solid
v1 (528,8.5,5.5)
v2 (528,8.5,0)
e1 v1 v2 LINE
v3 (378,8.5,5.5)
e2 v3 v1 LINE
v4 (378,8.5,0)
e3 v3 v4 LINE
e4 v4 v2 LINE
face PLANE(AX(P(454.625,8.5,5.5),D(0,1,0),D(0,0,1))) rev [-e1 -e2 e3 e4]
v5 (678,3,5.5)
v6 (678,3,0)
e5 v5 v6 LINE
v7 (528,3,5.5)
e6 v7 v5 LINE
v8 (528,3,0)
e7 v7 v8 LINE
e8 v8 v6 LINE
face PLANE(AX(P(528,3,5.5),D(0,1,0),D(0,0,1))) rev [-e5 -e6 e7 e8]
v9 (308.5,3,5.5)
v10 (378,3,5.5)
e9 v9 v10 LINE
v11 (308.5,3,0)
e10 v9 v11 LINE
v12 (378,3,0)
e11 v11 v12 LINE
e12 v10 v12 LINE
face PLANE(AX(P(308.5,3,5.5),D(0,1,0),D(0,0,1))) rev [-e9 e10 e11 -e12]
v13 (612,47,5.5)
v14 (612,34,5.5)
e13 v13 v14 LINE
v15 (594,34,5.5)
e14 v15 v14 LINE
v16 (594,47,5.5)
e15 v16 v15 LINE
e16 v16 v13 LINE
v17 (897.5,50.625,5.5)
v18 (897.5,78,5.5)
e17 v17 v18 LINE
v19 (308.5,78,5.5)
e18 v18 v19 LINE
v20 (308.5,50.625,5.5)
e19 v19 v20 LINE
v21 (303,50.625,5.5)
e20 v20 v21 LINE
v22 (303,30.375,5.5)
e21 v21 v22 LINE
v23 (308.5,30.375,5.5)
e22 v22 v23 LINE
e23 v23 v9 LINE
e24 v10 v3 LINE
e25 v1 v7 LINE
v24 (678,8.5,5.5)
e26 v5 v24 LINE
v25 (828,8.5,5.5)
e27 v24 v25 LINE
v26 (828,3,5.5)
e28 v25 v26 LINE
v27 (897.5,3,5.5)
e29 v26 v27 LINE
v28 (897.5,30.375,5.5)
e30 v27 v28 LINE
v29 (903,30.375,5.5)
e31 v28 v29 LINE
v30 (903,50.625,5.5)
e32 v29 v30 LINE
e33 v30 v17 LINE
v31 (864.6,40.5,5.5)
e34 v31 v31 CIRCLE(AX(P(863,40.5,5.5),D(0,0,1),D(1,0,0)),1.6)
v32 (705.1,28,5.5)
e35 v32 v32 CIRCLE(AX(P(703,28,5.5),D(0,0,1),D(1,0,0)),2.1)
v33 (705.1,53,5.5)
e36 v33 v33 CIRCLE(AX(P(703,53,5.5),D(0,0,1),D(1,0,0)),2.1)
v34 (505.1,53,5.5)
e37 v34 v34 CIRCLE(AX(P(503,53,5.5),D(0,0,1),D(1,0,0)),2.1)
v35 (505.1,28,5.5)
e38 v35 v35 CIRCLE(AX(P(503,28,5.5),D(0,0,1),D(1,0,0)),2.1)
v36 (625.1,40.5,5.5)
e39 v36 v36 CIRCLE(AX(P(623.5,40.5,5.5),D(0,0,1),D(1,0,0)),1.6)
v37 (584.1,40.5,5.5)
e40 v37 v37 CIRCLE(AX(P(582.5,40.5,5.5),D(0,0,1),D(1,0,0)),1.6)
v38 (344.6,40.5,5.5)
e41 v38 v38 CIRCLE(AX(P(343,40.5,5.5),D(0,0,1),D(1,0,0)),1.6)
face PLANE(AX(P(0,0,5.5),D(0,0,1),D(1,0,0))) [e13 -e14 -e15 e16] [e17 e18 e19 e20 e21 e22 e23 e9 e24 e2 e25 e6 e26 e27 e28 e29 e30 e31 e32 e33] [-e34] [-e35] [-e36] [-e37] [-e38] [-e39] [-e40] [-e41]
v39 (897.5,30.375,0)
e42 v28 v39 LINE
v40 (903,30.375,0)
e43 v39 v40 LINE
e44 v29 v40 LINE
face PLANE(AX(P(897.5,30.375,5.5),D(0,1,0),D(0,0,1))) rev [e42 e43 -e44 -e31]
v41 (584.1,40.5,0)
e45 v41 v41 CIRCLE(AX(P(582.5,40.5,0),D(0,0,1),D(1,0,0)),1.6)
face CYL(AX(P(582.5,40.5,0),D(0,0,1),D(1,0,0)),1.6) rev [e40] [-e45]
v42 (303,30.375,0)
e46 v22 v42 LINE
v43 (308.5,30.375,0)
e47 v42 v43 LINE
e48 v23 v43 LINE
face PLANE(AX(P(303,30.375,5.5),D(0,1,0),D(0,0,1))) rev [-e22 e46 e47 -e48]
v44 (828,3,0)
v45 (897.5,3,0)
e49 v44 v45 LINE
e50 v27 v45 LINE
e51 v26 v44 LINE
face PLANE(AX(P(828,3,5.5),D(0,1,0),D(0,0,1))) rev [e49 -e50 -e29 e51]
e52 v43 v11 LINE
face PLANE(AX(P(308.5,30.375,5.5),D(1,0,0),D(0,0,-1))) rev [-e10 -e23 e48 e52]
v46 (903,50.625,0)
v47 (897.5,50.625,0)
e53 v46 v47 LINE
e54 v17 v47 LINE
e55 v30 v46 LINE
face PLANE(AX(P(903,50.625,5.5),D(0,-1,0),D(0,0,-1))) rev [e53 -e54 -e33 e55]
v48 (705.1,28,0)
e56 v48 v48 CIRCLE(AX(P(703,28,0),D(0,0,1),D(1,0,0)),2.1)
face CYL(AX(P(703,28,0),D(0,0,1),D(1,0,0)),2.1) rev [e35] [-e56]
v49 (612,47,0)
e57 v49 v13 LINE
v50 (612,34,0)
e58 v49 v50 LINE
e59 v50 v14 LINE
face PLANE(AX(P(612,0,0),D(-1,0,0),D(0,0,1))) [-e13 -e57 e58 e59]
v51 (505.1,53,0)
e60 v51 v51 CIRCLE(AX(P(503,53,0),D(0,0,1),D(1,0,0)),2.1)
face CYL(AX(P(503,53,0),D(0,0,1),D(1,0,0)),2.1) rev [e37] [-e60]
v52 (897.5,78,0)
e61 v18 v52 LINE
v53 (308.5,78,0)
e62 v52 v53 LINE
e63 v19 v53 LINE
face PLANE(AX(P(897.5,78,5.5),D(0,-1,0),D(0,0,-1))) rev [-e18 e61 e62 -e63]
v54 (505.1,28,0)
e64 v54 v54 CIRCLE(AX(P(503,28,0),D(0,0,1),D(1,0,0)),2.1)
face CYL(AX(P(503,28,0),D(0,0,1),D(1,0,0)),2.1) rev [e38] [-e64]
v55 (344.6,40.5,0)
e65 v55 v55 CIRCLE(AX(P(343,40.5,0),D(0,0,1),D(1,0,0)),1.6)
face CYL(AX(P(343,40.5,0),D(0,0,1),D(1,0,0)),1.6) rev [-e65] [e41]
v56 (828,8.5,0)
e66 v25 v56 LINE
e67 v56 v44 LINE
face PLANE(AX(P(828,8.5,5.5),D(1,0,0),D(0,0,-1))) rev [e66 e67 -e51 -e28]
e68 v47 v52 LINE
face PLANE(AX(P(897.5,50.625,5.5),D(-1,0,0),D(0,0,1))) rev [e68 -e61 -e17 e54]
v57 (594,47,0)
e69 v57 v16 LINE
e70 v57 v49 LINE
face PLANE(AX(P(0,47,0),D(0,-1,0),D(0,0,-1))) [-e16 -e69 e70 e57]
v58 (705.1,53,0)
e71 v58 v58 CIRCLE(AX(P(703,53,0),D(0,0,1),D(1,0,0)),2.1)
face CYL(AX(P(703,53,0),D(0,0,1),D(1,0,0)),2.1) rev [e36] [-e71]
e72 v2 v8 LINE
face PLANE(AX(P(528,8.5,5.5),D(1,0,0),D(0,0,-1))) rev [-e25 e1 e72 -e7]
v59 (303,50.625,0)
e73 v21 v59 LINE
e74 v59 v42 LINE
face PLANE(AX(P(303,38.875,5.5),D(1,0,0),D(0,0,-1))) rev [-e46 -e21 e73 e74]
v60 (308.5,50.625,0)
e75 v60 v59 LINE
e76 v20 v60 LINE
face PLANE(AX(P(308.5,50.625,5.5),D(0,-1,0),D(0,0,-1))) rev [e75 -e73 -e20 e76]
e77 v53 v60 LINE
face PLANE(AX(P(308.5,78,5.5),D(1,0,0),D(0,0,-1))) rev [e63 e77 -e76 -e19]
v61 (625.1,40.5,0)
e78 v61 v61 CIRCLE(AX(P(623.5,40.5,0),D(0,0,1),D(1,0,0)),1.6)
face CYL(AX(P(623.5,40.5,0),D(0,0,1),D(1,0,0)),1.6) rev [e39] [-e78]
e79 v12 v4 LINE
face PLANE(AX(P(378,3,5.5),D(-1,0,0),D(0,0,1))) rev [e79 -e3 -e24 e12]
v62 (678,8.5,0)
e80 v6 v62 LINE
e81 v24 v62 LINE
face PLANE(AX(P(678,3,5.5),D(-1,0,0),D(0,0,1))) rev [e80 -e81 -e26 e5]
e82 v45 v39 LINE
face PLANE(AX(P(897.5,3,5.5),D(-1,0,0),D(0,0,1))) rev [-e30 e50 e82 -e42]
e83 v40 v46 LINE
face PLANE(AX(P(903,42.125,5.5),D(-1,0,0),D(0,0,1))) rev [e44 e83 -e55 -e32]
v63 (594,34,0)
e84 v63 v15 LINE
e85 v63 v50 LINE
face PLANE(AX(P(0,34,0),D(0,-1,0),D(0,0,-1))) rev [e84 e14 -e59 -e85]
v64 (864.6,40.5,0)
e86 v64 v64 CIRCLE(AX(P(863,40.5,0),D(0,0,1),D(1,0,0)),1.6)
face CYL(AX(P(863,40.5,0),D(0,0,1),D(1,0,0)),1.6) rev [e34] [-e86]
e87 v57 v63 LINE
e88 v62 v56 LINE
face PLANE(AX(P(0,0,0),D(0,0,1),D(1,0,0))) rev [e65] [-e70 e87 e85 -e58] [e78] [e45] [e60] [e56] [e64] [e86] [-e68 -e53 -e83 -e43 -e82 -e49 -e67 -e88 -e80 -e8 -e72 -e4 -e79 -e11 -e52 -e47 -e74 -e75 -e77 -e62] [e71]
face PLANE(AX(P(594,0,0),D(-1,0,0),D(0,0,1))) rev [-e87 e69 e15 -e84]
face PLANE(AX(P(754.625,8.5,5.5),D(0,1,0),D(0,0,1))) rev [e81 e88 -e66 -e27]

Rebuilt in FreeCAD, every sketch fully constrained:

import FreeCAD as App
import Part
import Sketcher
from FreeCAD import Vector

doc = App.newDocument("Part")
body = doc.addObject("PartDesign::Body", "Body")

# Sketch on XY plane
sketch1 = body.newObject("Sketcher::SketchObject", "Sketch")
sketch1.AttachmentSupport = (doc.getObject("XY_Plane"), [""])
sketch1.MapMode = "FlatFace"
sketch1.addGeometry([
    Part.LineSegment(Vector(308.5, 78, 0), Vector(308.5, 50.6, 0)),  # 0
    Part.LineSegment(Vector(308.5, 50.6, 0), Vector(303, 50.6, 0)),  # 1
    Part.LineSegment(Vector(303, 50.6, 0), Vector(303, 42.1, 0)),  # 2
    Part.LineSegment(Vector(303, 42.1, 0), Vector(306.2, 42.1, 0)),  # 3
    Part.LineSegment(Vector(306.2, 42.1, 0), Vector(306.2, 38.9, 0)),  # 4
    Part.LineSegment(Vector(306.2, 38.9, 0), Vector(303, 38.9, 0)),  # 5
    Part.LineSegment(Vector(303, 38.9, 0), Vector(303, 30.4, 0)),  # 6
    Part.LineSegment(Vector(303, 30.4, 0), Vector(308.5, 30.4, 0)),  # 7
    Part.LineSegment(Vector(308.5, 30.4, 0), Vector(308.5, 3, 0)),  # 8
    Part.LineSegment(Vector(308.5, 3, 0), Vector(378, 3, 0)),  # 9
    Part.LineSegment(Vector(378, 3, 0), Vector(378, 8.5, 0)),  # 10
    Part.LineSegment(Vector(378, 8.5, 0), Vector(451.4, 8.5, 0)),  # 11
    Part.LineSegment(Vector(451.4, 8.5, 0), Vector(451.4, 17.9, 0)),  # 12
    Part.LineSegment(Vector(451.4, 17.9, 0), Vector(450.1, 17.9, 0)),  # 13
    Part.LineSegment(Vector(450.1, 17.9, 0), Vector(450.1, 20.6, 0)),  # 14
    Part.LineSegment(Vector(450.1, 20.6, 0), Vector(451.4, 20.6, 0)),  # 15
    Part.LineSegment(Vector(451.4, 20.6, 0), Vector(451.4, 23.2, 0)),  # 16
    Part.LineSegment(Vector(451.4, 23.2, 0), Vector(454.6, 23.2, 0)),  # 17
    Part.LineSegment(Vector(454.6, 23.2, 0), Vector(454.6, 20.6, 0)),  # 18
    Part.LineSegment(Vector(454.6, 20.6, 0), Vector(455.9, 20.6, 0)),  # 19
    Part.LineSegment(Vector(455.9, 20.6, 0), Vector(455.9, 17.9, 0)),  # 20
    Part.LineSegment(Vector(455.9, 17.9, 0), Vector(454.6, 17.9, 0)),  # 21
    Part.LineSegment(Vector(454.6, 17.9, 0), Vector(454.6, 8.5, 0)),  # 22
    Part.LineSegment(Vector(454.6, 8.5, 0), Vector(528, 8.5, 0)),  # 23
    Part.LineSegment(Vector(528, 8.5, 0), Vector(528, 3, 0)),  # 24
    Part.LineSegment(Vector(528, 3, 0), Vector(678, 3, 0)),  # 25
    Part.LineSegment(Vector(678, 3, 0), Vector(678, 8.5, 0)),  # 26
    Part.LineSegment(Vector(678, 8.5, 0), Vector(751.4, 8.5, 0)),  # 27
    Part.LineSegment(Vector(751.4, 8.5, 0), Vector(751.4, 17.9, 0)),  # 28
    Part.LineSegment(Vector(751.4, 17.9, 0), Vector(750.1, 17.9, 0)),  # 29
    Part.LineSegment(Vector(750.1, 17.9, 0), Vector(750.1, 20.6, 0)),  # 30
    Part.LineSegment(Vector(750.1, 20.6, 0), Vector(751.4, 20.6, 0)),  # 31
    Part.LineSegment(Vector(751.4, 20.6, 0), Vector(751.4, 23.2, 0)),  # 32
    Part.LineSegment(Vector(751.4, 23.2, 0), Vector(754.6, 23.2, 0)),  # 33
    Part.LineSegment(Vector(754.6, 23.2, 0), Vector(754.6, 20.6, 0)),  # 34
    Part.LineSegment(Vector(754.6, 20.6, 0), Vector(755.9, 20.6, 0)),  # 35
    Part.LineSegment(Vector(755.9, 20.6, 0), Vector(755.9, 17.9, 0)),  # 36
    Part.LineSegment(Vector(755.9, 17.9, 0), Vector(754.6, 17.9, 0)),  # 37
    Part.LineSegment(Vector(754.6, 17.9, 0), Vector(754.6, 8.5, 0)),  # 38
    Part.LineSegment(Vector(754.6, 8.5, 0), Vector(828, 8.5, 0)),  # 39
    Part.LineSegment(Vector(828, 8.5, 0), Vector(828, 3, 0)),  # 40
    Part.LineSegment(Vector(828, 3, 0), Vector(897.5, 3, 0)),  # 41
    Part.LineSegment(Vector(897.5, 3, 0), Vector(897.5, 30.4, 0)),  # 42
    Part.LineSegment(Vector(897.5, 30.4, 0), Vector(903, 30.4, 0)),  # 43
    Part.LineSegment(Vector(903, 30.4, 0), Vector(903, 38.9, 0)),  # 44
    Part.LineSegment(Vector(903, 38.9, 0), Vector(899.8, 38.9, 0)),  # 45
    Part.LineSegment(Vector(899.8, 38.9, 0), Vector(899.8, 42.1, 0)),  # 46
    Part.LineSegment(Vector(899.8, 42.1, 0), Vector(903, 42.1, 0)),  # 47
    Part.LineSegment(Vector(903, 42.1, 0), Vector(903, 50.6, 0)),  # 48
    Part.LineSegment(Vector(903, 50.6, 0), Vector(897.5, 50.6, 0)),  # 49
    Part.LineSegment(Vector(897.5, 50.6, 0), Vector(897.5, 78, 0)),  # 50
    Part.LineSegment(Vector(897.5, 78, 0), Vector(308.5, 78, 0)),  # 51
], False)
sketch1.addConstraint([
    Sketcher.Constraint("Coincident", 0, 2, 1, 1),
    Sketcher.Constraint("Coincident", 1, 2, 2, 1),
    Sketcher.Constraint("Coincident", 2, 2, 3, 1),
    Sketcher.Constraint("Coincident", 3, 2, 4, 1),
    Sketcher.Constraint("Coincident", 4, 2, 5, 1),
    Sketcher.Constraint("Coincident", 5, 2, 6, 1),
    Sketcher.Constraint("Coincident", 6, 2, 7, 1),
    Sketcher.Constraint("Coincident", 7, 2, 8, 1),
    Sketcher.Constraint("Coincident", 8, 2, 9, 1),
    Sketcher.Constraint("Coincident", 9, 2, 10, 1),
    Sketcher.Constraint("Coincident", 10, 2, 11, 1),
    Sketcher.Constraint("Coincident", 11, 2, 12, 1),
    Sketcher.Constraint("Coincident", 12, 2, 13, 1),
    Sketcher.Constraint("Coincident", 13, 2, 14, 1),
    Sketcher.Constraint("Coincident", 14, 2, 15, 1),
    Sketcher.Constraint("Coincident", 15, 2, 16, 1),
    Sketcher.Constraint("Coincident", 16, 2, 17, 1),
    Sketcher.Constraint("Coincident", 17, 2, 18, 1),
    Sketcher.Constraint("Coincident", 18, 2, 19, 1),
    Sketcher.Constraint("Coincident", 19, 2, 20, 1),
    Sketcher.Constraint("Coincident", 20, 2, 21, 1),
    Sketcher.Constraint("Coincident", 21, 2, 22, 1),
    Sketcher.Constraint("Coincident", 22, 2, 23, 1),
    Sketcher.Constraint("Coincident", 23, 2, 24, 1),
    Sketcher.Constraint("Coincident", 24, 2, 25, 1),
    Sketcher.Constraint("Coincident", 25, 2, 26, 1),
    Sketcher.Constraint("Coincident", 26, 2, 27, 1),
    Sketcher.Constraint("Coincident", 27, 2, 28, 1),
    Sketcher.Constraint("Coincident", 28, 2, 29, 1),
    Sketcher.Constraint("Coincident", 29, 2, 30, 1),
    Sketcher.Constraint("Coincident", 30, 2, 31, 1),
    Sketcher.Constraint("Coincident", 31, 2, 32, 1),
    Sketcher.Constraint("Coincident", 32, 2, 33, 1),
    Sketcher.Constraint("Coincident", 33, 2, 34, 1),
    Sketcher.Constraint("Coincident", 34, 2, 35, 1),
    Sketcher.Constraint("Coincident", 35, 2, 36, 1),
    Sketcher.Constraint("Coincident", 36, 2, 37, 1),
    Sketcher.Constraint("Coincident", 37, 2, 38, 1),
    Sketcher.Constraint("Coincident", 38, 2, 39, 1),
    Sketcher.Constraint("Coincident", 39, 2, 40, 1),
    Sketcher.Constraint("Coincident", 40, 2, 41, 1),
    Sketcher.Constraint("Coincident", 41, 2, 42, 1),
    Sketcher.Constraint("Coincident", 42, 2, 43, 1),
    Sketcher.Constraint("Coincident", 43, 2, 44, 1),
    Sketcher.Constraint("Coincident", 44, 2, 45, 1),
    Sketcher.Constraint("Coincident", 45, 2, 46, 1),
    Sketcher.Constraint("Coincident", 46, 2, 47, 1),
    Sketcher.Constraint("Coincident", 47, 2, 48, 1),
    Sketcher.Constraint("Coincident", 48, 2, 49, 1),
    Sketcher.Constraint("Coincident", 49, 2, 50, 1),
    Sketcher.Constraint("Coincident", 50, 2, 51, 1),
    Sketcher.Constraint("Coincident", 51, 2, 0, 1),
    Sketcher.Constraint("Vertical", 0),
    Sketcher.Constraint("Horizontal", 1),
    Sketcher.Constraint("Vertical", 2),
    Sketcher.Constraint("Horizontal", 3),
    Sketcher.Constraint("Vertical", 4),
    Sketcher.Constraint("Horizontal", 5),
    Sketcher.Constraint("Vertical", 6),
    Sketcher.Constraint("Horizontal", 7),
    Sketcher.Constraint("Vertical", 8),
    Sketcher.Constraint("Horizontal", 9),
    Sketcher.Constraint("Vertical", 10),
    Sketcher.Constraint("Horizontal", 11),
    Sketcher.Constraint("Vertical", 12),
    Sketcher.Constraint("Horizontal", 13),
    Sketcher.Constraint("Vertical", 14),
    Sketcher.Constraint("Horizontal", 15),
    Sketcher.Constraint("Vertical", 16),
    Sketcher.Constraint("Horizontal", 17),
    Sketcher.Constraint("Vertical", 18),
    Sketcher.Constraint("Horizontal", 19),
    Sketcher.Constraint("Vertical", 20),
    Sketcher.Constraint("Horizontal", 21),
    Sketcher.Constraint("Vertical", 22),
    Sketcher.Constraint("Horizontal", 23),
    Sketcher.Constraint("Vertical", 24),
    Sketcher.Constraint("Horizontal", 25),
    Sketcher.Constraint("Vertical", 26),
    Sketcher.Constraint("Horizontal", 27),
    Sketcher.Constraint("Vertical", 28),
    Sketcher.Constraint("Horizontal", 29),
    Sketcher.Constraint("Vertical", 30),
    Sketcher.Constraint("Horizontal", 31),
    Sketcher.Constraint("Vertical", 32),
    Sketcher.Constraint("Horizontal", 33),
    Sketcher.Constraint("Vertical", 34),
    Sketcher.Constraint("Horizontal", 35),
    Sketcher.Constraint("Vertical", 36),
    Sketcher.Constraint("Horizontal", 37),
    Sketcher.Constraint("Vertical", 38),
    Sketcher.Constraint("Horizontal", 39),
    Sketcher.Constraint("Vertical", 40),
    Sketcher.Constraint("Horizontal", 41),
    Sketcher.Constraint("Vertical", 42),
    Sketcher.Constraint("Horizontal", 43),
    Sketcher.Constraint("Vertical", 44),
    Sketcher.Constraint("Horizontal", 45),
    Sketcher.Constraint("Vertical", 46),
    Sketcher.Constraint("Horizontal", 47),
    Sketcher.Constraint("Vertical", 48),
    Sketcher.Constraint("Horizontal", 49),
    Sketcher.Constraint("Vertical", 50),
    Sketcher.Constraint("Horizontal", 51),
    Sketcher.Constraint("Horizontal", 15, 2, 18, 2),
    Sketcher.Constraint("Horizontal", 13, 2, 20, 2),
    Sketcher.Constraint("Horizontal", 11, 2, 22, 2),
    Sketcher.Constraint("Horizontal", 9, 2, 24, 2),
    Sketcher.Constraint("Horizontal", 23, 2, 26, 2),
    Sketcher.Constraint("Horizontal", 21, 2, 28, 2),
    Sketcher.Constraint("Horizontal", 19, 2, 30, 2),
    Sketcher.Constraint("Horizontal", 17, 2, 32, 2),
    Sketcher.Constraint("Horizontal", 31, 2, 34, 2),
    Sketcher.Constraint("Horizontal", 29, 2, 36, 2),
    Sketcher.Constraint("Horizontal", 27, 2, 38, 2),
    Sketcher.Constraint("Horizontal", 25, 2, 40, 2),
    Sketcher.Constraint("Horizontal", 7, 2, 42, 2),
    Sketcher.Constraint("Horizontal", 5, 2, 44, 2),
    Sketcher.Constraint("Horizontal", 3, 2, 46, 2),
    Sketcher.Constraint("Horizontal", 1, 2, 48, 2),
    Sketcher.Constraint("Vertical", 2, 2, 5, 2),
    Sketcher.Constraint("Vertical", 0, 2, 7, 2),
    Sketcher.Constraint("Vertical", 12, 2, 15, 2),
    Sketcher.Constraint("Vertical", 18, 2, 21, 2),
    Sketcher.Constraint("Vertical", 28, 2, 31, 2),
    Sketcher.Constraint("Vertical", 34, 2, 37, 2),
    Sketcher.Constraint("Vertical", 44, 2, 47, 2),
    Sketcher.Constraint("Vertical", 42, 2, 49, 2),
    Sketcher.Constraint("Equal", 5, 17),
    Sketcher.Constraint("Equal", 15, 19),
    Sketcher.Constraint("Equal", 11, 23),
    Sketcher.Constraint("Equal", 23, 27),
    Sketcher.Constraint("Equal", 21, 29),
    Sketcher.Constraint("Equal", 17, 33),
    Sketcher.Constraint("Equal", 31, 35),
    Sketcher.Constraint("Equal", 27, 39),
    Sketcher.Constraint("Equal", 9, 41),
    Sketcher.Constraint("Equal", 7, 43),
    Sketcher.Constraint("Equal", 33, 45),
    Sketcher.Constraint("Equal", 47, 4),
    Sketcher.Constraint("Equal", 2, 6),
    Sketcher.Constraint("Equal", 0, 8),
    Sketcher.Constraint("Equal", 49, 10),
    Sketcher.Constraint("Equal", 14, 16),
    Sketcher.Constraint("DistanceX", 25, 1, 25, 2, 150.0),
    Sketcher.Constraint("DistanceX", 51, 2, 51, 1, 589.0),
    Sketcher.Constraint("DistanceX", 1, 2, 1, 1, 5.5),
    Sketcher.Constraint("DistanceX", 9, 1, 9, 2, 69.5),
    Sketcher.Constraint("DistanceY", 2, 2, 2, 1, 8.5),
    Sketcher.Constraint("DistanceX", -1, 1, 1, 2, 303.0),
    Sketcher.Constraint("DistanceY", -1, 1, 8, 2, 3.0),
    Sketcher.Constraint("DistanceY", -1, 1, 50, 2, 78.0),
    Sketcher.Constraint("DistanceX", 3, 1, 3, 2, 3.25),
    Sketcher.Constraint("DistanceX", 13, 2, 13, 1, 1.25),
    Sketcher.Constraint("DistanceY", 12, 1, 12, 2, 9.45),
    Sketcher.Constraint("DistanceY", 14, 1, 14, 2, 2.65),
])
pad1 = body.newObject("PartDesign::Pad", "Pad")
pad1.Profile = sketch1
pad1.Length = 5.5

# Sketch on XY plane
sketch2 = body.newObject("Sketcher::SketchObject", "Sketch001")
sketch2.AttachmentSupport = (doc.getObject("XY_Plane"), [""])
sketch2.MapMode = "FlatFace"
sketch2.AttachmentOffset = App.Placement(Vector(0, 0, 5.5), App.Rotation())
sketch2.addGeometry([
    Part.Circle(Vector(582.5, 40.5, 0), Vector(0, 0, 1), 1.6),  # 0
    Part.Circle(Vector(623.5, 40.5, 0), Vector(0, 0, 1), 1.6),  # 1
    Part.LineSegment(Vector(594, 47, 0), Vector(594, 34, 0)),  # 2
    Part.LineSegment(Vector(594, 34, 0), Vector(612, 34, 0)),  # 3
    Part.LineSegment(Vector(612, 34, 0), Vector(612, 47, 0)),  # 4
    Part.LineSegment(Vector(612, 47, 0), Vector(594, 47, 0)),  # 5
], False)
sketch2.addConstraint([
    Sketcher.Constraint("Coincident", 2, 2, 3, 1),
    Sketcher.Constraint("Coincident", 3, 2, 4, 1),
    Sketcher.Constraint("Coincident", 4, 2, 5, 1),
    Sketcher.Constraint("Coincident", 5, 2, 2, 1),
    Sketcher.Constraint("Vertical", 2),
    Sketcher.Constraint("Horizontal", 3),
    Sketcher.Constraint("Vertical", 4),
    Sketcher.Constraint("Horizontal", 5),
    Sketcher.Constraint("Equal", 0, 1),
    Sketcher.Constraint("Horizontal", 0, 3, 1, 3),
    Sketcher.Constraint("Diameter", 0, 3.2),
    Sketcher.Constraint("DistanceX", 3, 1, 3, 2, 18.0),
    Sketcher.Constraint("DistanceY", 2, 2, 2, 1, 13.0),
    Sketcher.Constraint("DistanceX", -1, 1, 2, 2, 594.0),
    Sketcher.Constraint("DistanceY", -1, 1, 2, 2, 34.0),
    Sketcher.Constraint("DistanceX", 0, 3, 1, 3, 41.0),
    Sketcher.Constraint("DistanceX", -1, 1, 0, 3, 582.5),
    Sketcher.Constraint("DistanceY", -1, 1, 0, 3, 40.5),
])
pocket1 = body.newObject("PartDesign::Pocket", "Pocket")
pocket1.Profile = sketch2
pocket1.Type = "ThroughAll"
pocket1.Midplane = True

# Sketch on XY plane
sketch3 = body.newObject("Sketcher::SketchObject", "Sketch002")
sketch3.AttachmentSupport = (doc.getObject("XY_Plane"), [""])
sketch3.MapMode = "FlatFace"
sketch3.AttachmentOffset = App.Placement(Vector(0, 0, 5.5), App.Rotation())
sketch3.addGeometry([
    Part.Circle(Vector(503, 53, 0), Vector(0, 0, 1), 2.1),
    Part.Circle(Vector(503, 28, 0), Vector(0, 0, 1), 2.1),
    Part.Circle(Vector(703, 28, 0), Vector(0, 0, 1), 2.1),
    Part.Circle(Vector(703, 53, 0), Vector(0, 0, 1), 2.1),
], False)
sketch3.addConstraint([
    Sketcher.Constraint("Equal", 0, 1),
    Sketcher.Constraint("Equal", 1, 2),
    Sketcher.Constraint("Equal", 2, 3),
    Sketcher.Constraint("Horizontal", 1, 3, 2, 3),
    Sketcher.Constraint("Horizontal", 0, 3, 3, 3),
    Sketcher.Constraint("Vertical", 0, 3, 1, 3),
    Sketcher.Constraint("Vertical", 2, 3, 3, 3),
    Sketcher.Constraint("Diameter", 0, 4.2),
    Sketcher.Constraint("DistanceX", -1, 1, 0, 3, 503.0),
    Sketcher.Constraint("DistanceY", -1, 1, 0, 3, 53.0),
    Sketcher.Constraint("DistanceY", -1, 1, 1, 3, 28.0),
    Sketcher.Constraint("DistanceX", -1, 1, 2, 3, 703.0),
])
pocket2 = body.newObject("PartDesign::Pocket", "Pocket001")
pocket2.Profile = sketch3
pocket2.Type = "ThroughAll"

# Sketch on XY plane
sketch4 = body.newObject("Sketcher::SketchObject", "Sketch003")
sketch4.AttachmentSupport = (doc.getObject("XY_Plane"), [""])
sketch4.MapMode = "FlatFace"
sketch4.AttachmentOffset = App.Placement(Vector(0, 0, 5.5), App.Rotation())
sketch4.addGeometry([
    Part.Circle(Vector(343, 40.5, 0), Vector(0, 0, 1), 1.6),
    Part.Circle(Vector(863, 40.5, 0), Vector(0, 0, 1), 1.6),
], False)
sketch4.addConstraint([
    Sketcher.Constraint("Equal", 0, 1),
    Sketcher.Constraint("Horizontal", 0, 3, 1, 3),
    Sketcher.Constraint("Diameter", 0, 3.2),
    Sketcher.Constraint("DistanceX", -1, 1, 0, 3, 343.0),
    Sketcher.Constraint("DistanceX", -1, 1, 1, 3, 863.0),
    Sketcher.Constraint("DistanceY", -1, 1, 0, 3, 40.5),
])
pocket3 = body.newObject("PartDesign::Pocket", "Pocket002")
pocket3.Profile = sketch4
pocket3.Type = "ThroughAll"

# Sketch on XY plane
sketch5 = body.newObject("Sketcher::SketchObject", "Sketch004")
sketch5.AttachmentSupport = (doc.getObject("XY_Plane"), [""])
sketch5.MapMode = "FlatFace"
sketch5.AttachmentOffset = App.Placement(Vector(0, 0, 5.5), App.Rotation())
sketch5.addGeometry([
    Part.LineSegment(Vector(751.4, 8.5, 0), Vector(754.6, 8.5, 0)),  # 0
    Part.LineSegment(Vector(754.6, 8.5, 0), Vector(754.6, 17.9, 0)),  # 1
    Part.LineSegment(Vector(754.6, 17.9, 0), Vector(755.9, 17.9, 0)),  # 2
    Part.LineSegment(Vector(755.9, 17.9, 0), Vector(755.9, 20.6, 0)),  # 3
    Part.LineSegment(Vector(755.9, 20.6, 0), Vector(754.6, 20.6, 0)),  # 4
    Part.LineSegment(Vector(754.6, 20.6, 0), Vector(754.6, 23.2, 0)),  # 5
    Part.LineSegment(Vector(754.6, 23.2, 0), Vector(751.4, 23.2, 0)),  # 6
    Part.LineSegment(Vector(751.4, 23.2, 0), Vector(751.4, 20.6, 0)),  # 7
    Part.LineSegment(Vector(751.4, 20.6, 0), Vector(750.1, 20.6, 0)),  # 8
    Part.LineSegment(Vector(750.1, 20.6, 0), Vector(750.1, 17.9, 0)),  # 9
    Part.LineSegment(Vector(750.1, 17.9, 0), Vector(751.4, 17.9, 0)),  # 10
    Part.LineSegment(Vector(751.4, 17.9, 0), Vector(751.4, 8.5, 0)),  # 11
    Part.LineSegment(Vector(899.8, 42.1, 0), Vector(899.8, 38.9, 0)),  # 12
    Part.LineSegment(Vector(899.8, 38.9, 0), Vector(903, 38.9, 0)),  # 13
    Part.LineSegment(Vector(903, 38.9, 0), Vector(903, 42.1, 0)),  # 14
    Part.LineSegment(Vector(903, 42.1, 0), Vector(899.8, 42.1, 0)),  # 15
    Part.LineSegment(Vector(451.4, 8.5, 0), Vector(454.6, 8.5, 0)),  # 16
    Part.LineSegment(Vector(454.6, 8.5, 0), Vector(454.6, 17.9, 0)),  # 17
    Part.LineSegment(Vector(454.6, 17.9, 0), Vector(455.9, 17.9, 0)),  # 18
    Part.LineSegment(Vector(455.9, 17.9, 0), Vector(455.9, 20.6, 0)),  # 19
    Part.LineSegment(Vector(455.9, 20.6, 0), Vector(454.6, 20.6, 0)),  # 20
    Part.LineSegment(Vector(454.6, 20.6, 0), Vector(454.6, 23.2, 0)),  # 21
    Part.LineSegment(Vector(454.6, 23.2, 0), Vector(451.4, 23.2, 0)),  # 22
    Part.LineSegment(Vector(451.4, 23.2, 0), Vector(451.4, 20.6, 0)),  # 23
    Part.LineSegment(Vector(451.4, 20.6, 0), Vector(450.1, 20.6, 0)),  # 24
    Part.LineSegment(Vector(450.1, 20.6, 0), Vector(450.1, 17.9, 0)),  # 25
    Part.LineSegment(Vector(450.1, 17.9, 0), Vector(451.4, 17.9, 0)),  # 26
    Part.LineSegment(Vector(451.4, 17.9, 0), Vector(451.4, 8.5, 0)),  # 27
    Part.LineSegment(Vector(303, 42.1, 0), Vector(303, 38.9, 0)),  # 28
    Part.LineSegment(Vector(303, 38.9, 0), Vector(306.2, 38.9, 0)),  # 29
    Part.LineSegment(Vector(306.2, 38.9, 0), Vector(306.2, 42.1, 0)),  # 30
    Part.LineSegment(Vector(306.2, 42.1, 0), Vector(303, 42.1, 0)),  # 31
], False)
sketch5.addConstraint([
    Sketcher.Constraint("Coincident", 0, 2, 1, 1),
    Sketcher.Constraint("Coincident", 1, 2, 2, 1),
    Sketcher.Constraint("Coincident", 2, 2, 3, 1),
    Sketcher.Constraint("Coincident", 3, 2, 4, 1),
    Sketcher.Constraint("Coincident", 4, 2, 5, 1),
    Sketcher.Constraint("Coincident", 5, 2, 6, 1),
    Sketcher.Constraint("Coincident", 6, 2, 7, 1),
    Sketcher.Constraint("Coincident", 7, 2, 8, 1),
    Sketcher.Constraint("Coincident", 8, 2, 9, 1),
    Sketcher.Constraint("Coincident", 9, 2, 10, 1),
    Sketcher.Constraint("Coincident", 10, 2, 11, 1),
    Sketcher.Constraint("Coincident", 11, 2, 0, 1),
    Sketcher.Constraint("Coincident", 12, 2, 13, 1),
    Sketcher.Constraint("Coincident", 13, 2, 14, 1),
    Sketcher.Constraint("Coincident", 14, 2, 15, 1),
    Sketcher.Constraint("Coincident", 15, 2, 12, 1),
    Sketcher.Constraint("Coincident", 16, 2, 17, 1),
    Sketcher.Constraint("Coincident", 17, 2, 18, 1),
    Sketcher.Constraint("Coincident", 18, 2, 19, 1),
    Sketcher.Constraint("Coincident", 19, 2, 20, 1),
    Sketcher.Constraint("Coincident", 20, 2, 21, 1),
    Sketcher.Constraint("Coincident", 21, 2, 22, 1),
    Sketcher.Constraint("Coincident", 22, 2, 23, 1),
    Sketcher.Constraint("Coincident", 23, 2, 24, 1),
    Sketcher.Constraint("Coincident", 24, 2, 25, 1),
    Sketcher.Constraint("Coincident", 25, 2, 26, 1),
    Sketcher.Constraint("Coincident", 26, 2, 27, 1),
    Sketcher.Constraint("Coincident", 27, 2, 16, 1),
    Sketcher.Constraint("Coincident", 28, 2, 29, 1),
    Sketcher.Constraint("Coincident", 29, 2, 30, 1),
    Sketcher.Constraint("Coincident", 30, 2, 31, 1),
    Sketcher.Constraint("Coincident", 31, 2, 28, 1),
    Sketcher.Constraint("Horizontal", 0),
    Sketcher.Constraint("Vertical", 1),
    Sketcher.Constraint("Horizontal", 2),
    Sketcher.Constraint("Vertical", 3),
    Sketcher.Constraint("Horizontal", 4),
    Sketcher.Constraint("Vertical", 5),
    Sketcher.Constraint("Horizontal", 6),
    Sketcher.Constraint("Vertical", 7),
    Sketcher.Constraint("Horizontal", 8),
    Sketcher.Constraint("Vertical", 9),
    Sketcher.Constraint("Horizontal", 10),
    Sketcher.Constraint("Vertical", 11),
    Sketcher.Constraint("Vertical", 12),
    Sketcher.Constraint("Horizontal", 13),
    Sketcher.Constraint("Vertical", 14),
    Sketcher.Constraint("Horizontal", 15),
    Sketcher.Constraint("Horizontal", 16),
    Sketcher.Constraint("Vertical", 17),
    Sketcher.Constraint("Horizontal", 18),
    Sketcher.Constraint("Vertical", 19),
    Sketcher.Constraint("Horizontal", 20),
    Sketcher.Constraint("Vertical", 21),
    Sketcher.Constraint("Horizontal", 22),
    Sketcher.Constraint("Vertical", 23),
    Sketcher.Constraint("Horizontal", 24),
    Sketcher.Constraint("Vertical", 25),
    Sketcher.Constraint("Horizontal", 26),
    Sketcher.Constraint("Vertical", 27),
    Sketcher.Constraint("Vertical", 28),
    Sketcher.Constraint("Horizontal", 29),
    Sketcher.Constraint("Vertical", 30),
    Sketcher.Constraint("Horizontal", 31),
    Sketcher.Constraint("Horizontal", 4, 2, 7, 2),
    Sketcher.Constraint("Horizontal", 2, 2, 9, 2),
    Sketcher.Constraint("Horizontal", 11, 2, 16, 2),
    Sketcher.Constraint("Horizontal", 10, 2, 17, 2),
    Sketcher.Constraint("Horizontal", 8, 2, 19, 2),
    Sketcher.Constraint("Horizontal", 6, 2, 21, 2),
    Sketcher.Constraint("Horizontal", 20, 2, 23, 2),
    Sketcher.Constraint("Horizontal", 18, 2, 25, 2),
    Sketcher.Constraint("Horizontal", 13, 2, 28, 2),
    Sketcher.Constraint("Horizontal", 15, 2, 30, 2),
    Sketcher.Constraint("Vertical", 1, 2, 4, 2),
    Sketcher.Constraint("Vertical", 7, 2, 10, 2),
    Sketcher.Constraint("Vertical", 17, 2, 20, 2),
    Sketcher.Constraint("Vertical", 23, 2, 26, 2),
    Sketcher.Constraint("Equal", 4, 8),
    Sketcher.Constraint("Equal", 6, 13),
    Sketcher.Constraint("Equal", 15, 16),
    Sketcher.Constraint("Equal", 10, 18),
    Sketcher.Constraint("Equal", 20, 24),
    Sketcher.Constraint("Equal", 22, 29),
    Sketcher.Constraint("Equal", 3, 5),
    Sketcher.Constraint("Equal", 31, 12),
    Sketcher.Constraint("DistanceX", -1, 1, 13, 2, 903.0),
    Sketcher.Constraint("DistanceX", -1, 1, 28, 2, 303.0),
    Sketcher.Constraint("DistanceX", 0, 1, 0, 2, 3.25),
    Sketcher.Constraint("DistanceX", 2, 1, 2, 2, 1.25),
    Sketcher.Constraint("DistanceY", 1, 1, 1, 2, 9.45),
    Sketcher.Constraint("DistanceY", 3, 1, 3, 2, 2.65),
    Sketcher.Constraint("DistanceY", -1, 1, 0, 2, 8.5),
    Sketcher.Constraint("DistanceX", 16, 2, 9, 2, 295.5),
    Sketcher.Constraint("DistanceX", -1, 1, 0, 2, 754.625),
    Sketcher.Constraint("DistanceY", -1, 1, 12, 2, 38.875),
])
pad2 = body.newObject("PartDesign::Pad", "Pad001")
pad2.Profile = sketch5
pad2.Length = 5.5
pad2.Reversed = True

doc.recompute()
